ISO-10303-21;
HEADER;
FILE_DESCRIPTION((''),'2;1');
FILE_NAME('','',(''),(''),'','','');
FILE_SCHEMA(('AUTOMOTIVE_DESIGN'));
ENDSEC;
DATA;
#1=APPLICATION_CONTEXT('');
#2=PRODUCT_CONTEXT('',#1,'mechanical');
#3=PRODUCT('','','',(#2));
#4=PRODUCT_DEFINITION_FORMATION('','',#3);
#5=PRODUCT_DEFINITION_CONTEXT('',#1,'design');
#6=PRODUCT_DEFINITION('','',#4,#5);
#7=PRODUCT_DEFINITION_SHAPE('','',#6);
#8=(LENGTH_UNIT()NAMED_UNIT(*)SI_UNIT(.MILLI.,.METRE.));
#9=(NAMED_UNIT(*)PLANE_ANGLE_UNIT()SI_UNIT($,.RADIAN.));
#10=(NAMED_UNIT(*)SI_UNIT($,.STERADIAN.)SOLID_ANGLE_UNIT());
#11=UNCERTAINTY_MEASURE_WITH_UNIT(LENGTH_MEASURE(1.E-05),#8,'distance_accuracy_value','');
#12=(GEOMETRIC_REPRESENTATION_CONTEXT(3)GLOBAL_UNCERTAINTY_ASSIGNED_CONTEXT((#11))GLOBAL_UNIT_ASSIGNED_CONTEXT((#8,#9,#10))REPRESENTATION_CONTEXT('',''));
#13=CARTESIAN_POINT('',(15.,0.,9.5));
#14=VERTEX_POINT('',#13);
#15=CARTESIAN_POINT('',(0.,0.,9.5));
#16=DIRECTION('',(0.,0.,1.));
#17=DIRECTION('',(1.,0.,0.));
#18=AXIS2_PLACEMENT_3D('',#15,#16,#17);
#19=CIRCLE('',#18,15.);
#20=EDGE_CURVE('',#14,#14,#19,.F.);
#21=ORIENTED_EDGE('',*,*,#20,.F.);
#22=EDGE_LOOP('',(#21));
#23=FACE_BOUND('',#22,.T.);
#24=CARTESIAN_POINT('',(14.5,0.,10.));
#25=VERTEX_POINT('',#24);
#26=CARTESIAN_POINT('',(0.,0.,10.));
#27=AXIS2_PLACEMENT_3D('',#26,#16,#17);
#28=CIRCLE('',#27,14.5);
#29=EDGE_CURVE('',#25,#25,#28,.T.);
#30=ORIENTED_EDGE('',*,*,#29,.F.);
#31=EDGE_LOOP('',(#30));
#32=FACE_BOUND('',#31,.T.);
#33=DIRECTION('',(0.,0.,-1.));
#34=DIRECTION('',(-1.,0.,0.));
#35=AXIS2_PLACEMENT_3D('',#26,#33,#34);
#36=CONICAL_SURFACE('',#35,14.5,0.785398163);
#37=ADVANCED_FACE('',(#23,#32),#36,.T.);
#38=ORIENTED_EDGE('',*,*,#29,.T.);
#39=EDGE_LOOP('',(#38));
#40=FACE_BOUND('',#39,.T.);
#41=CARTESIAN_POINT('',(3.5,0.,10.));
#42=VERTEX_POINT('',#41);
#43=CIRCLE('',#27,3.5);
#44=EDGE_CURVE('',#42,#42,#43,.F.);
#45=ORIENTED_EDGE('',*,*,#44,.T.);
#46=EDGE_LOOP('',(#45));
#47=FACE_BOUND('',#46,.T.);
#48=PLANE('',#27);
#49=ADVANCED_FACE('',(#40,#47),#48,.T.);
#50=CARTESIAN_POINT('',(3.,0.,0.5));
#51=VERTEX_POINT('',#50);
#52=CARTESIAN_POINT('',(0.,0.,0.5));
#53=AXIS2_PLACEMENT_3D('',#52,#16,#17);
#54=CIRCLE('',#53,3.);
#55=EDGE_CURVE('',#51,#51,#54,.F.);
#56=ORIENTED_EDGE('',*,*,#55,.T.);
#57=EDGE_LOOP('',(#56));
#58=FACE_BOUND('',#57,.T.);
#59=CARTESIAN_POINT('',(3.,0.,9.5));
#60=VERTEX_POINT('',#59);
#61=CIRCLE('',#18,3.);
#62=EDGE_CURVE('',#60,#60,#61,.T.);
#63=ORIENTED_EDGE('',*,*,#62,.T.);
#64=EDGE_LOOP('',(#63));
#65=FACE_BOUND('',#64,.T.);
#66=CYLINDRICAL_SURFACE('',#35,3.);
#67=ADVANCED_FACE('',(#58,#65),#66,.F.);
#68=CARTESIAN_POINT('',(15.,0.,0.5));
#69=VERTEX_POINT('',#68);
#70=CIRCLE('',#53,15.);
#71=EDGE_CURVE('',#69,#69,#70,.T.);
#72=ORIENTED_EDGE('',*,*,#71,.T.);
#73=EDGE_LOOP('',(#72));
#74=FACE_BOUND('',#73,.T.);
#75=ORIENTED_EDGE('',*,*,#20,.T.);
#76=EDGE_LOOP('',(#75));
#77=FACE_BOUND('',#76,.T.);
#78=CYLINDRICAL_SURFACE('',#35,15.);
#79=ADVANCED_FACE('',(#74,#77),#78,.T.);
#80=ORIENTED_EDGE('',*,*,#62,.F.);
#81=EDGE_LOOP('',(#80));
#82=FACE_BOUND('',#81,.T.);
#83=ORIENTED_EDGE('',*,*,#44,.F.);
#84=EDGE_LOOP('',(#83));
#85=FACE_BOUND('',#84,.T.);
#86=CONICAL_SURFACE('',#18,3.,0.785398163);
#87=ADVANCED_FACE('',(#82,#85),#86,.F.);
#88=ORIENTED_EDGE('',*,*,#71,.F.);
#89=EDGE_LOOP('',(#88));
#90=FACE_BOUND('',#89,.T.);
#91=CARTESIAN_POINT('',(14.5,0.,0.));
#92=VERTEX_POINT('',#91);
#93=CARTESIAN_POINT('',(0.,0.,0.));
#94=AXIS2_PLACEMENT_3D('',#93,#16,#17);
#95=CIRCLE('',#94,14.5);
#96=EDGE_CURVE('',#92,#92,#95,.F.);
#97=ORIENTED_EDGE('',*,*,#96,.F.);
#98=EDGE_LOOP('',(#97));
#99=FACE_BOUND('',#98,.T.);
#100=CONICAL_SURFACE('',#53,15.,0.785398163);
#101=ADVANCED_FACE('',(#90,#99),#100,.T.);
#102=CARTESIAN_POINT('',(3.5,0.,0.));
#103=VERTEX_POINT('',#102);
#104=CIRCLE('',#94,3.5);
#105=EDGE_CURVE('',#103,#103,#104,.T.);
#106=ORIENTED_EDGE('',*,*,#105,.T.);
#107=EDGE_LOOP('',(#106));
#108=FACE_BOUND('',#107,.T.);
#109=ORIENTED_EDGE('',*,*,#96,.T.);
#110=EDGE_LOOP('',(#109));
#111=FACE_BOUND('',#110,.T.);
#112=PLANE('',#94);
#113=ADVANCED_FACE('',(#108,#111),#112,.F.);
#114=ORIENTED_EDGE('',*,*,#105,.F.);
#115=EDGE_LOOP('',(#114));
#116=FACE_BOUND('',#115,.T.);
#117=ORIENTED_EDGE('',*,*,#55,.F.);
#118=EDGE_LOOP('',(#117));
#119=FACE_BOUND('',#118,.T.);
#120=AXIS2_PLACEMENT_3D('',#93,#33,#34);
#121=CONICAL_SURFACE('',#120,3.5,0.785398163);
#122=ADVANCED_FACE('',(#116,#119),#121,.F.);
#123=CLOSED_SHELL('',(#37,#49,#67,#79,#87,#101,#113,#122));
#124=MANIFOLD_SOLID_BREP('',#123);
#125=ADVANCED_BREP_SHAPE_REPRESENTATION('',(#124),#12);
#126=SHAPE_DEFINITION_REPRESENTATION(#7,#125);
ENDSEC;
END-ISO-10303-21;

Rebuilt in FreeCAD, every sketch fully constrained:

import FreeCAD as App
import Part
import Sketcher

V = App.Vector


def edges_at(feature, points):
    """Names of the edges that pass closest to the given points."""
    edges = feature.Shape.Edges
    near = lambda p: min(range(len(edges)), key=lambda i: edges[i].distToShape(Part.Vertex(*p))[0])
    return sorted({f"Edge{near(p) + 1}" for p in points})

doc = App.newDocument("Part")
params = doc.addObject("Spreadsheet::Sheet", "Params")
for row, (alias, value) in enumerate([
    ("sketch1_diameter", "30 mm"),
    ("sketch1_diameter2", "6 mm"),
    ("pad1_length", "10 mm"),
    ("chamfer_size", "0.5 mm"),
], start=1):
    params.set(f"A{row}", alias)
    params.set(f"B{row}", "=" + value)
    params.setAlias(f"B{row}", alias)

body = doc.addObject("PartDesign::Body", "Body")

# Sketch on XY plane
sketch1 = body.newObject("Sketcher::SketchObject", "Sketch")
sketch1.AttachmentSupport = (doc.getObject("XY_Plane"), [""])
sketch1.MapMode = "FlatFace"
sketch1.addGeometry(Part.Circle(V(0, 0, 0), V(0, 0, 1), 15), False)
sketch1.addGeometry(Part.Circle(V(0, 0, 0), V(0, 0, 1), 3), False)
sketch1.addConstraint(Sketcher.Constraint("Coincident", 0, 3, -1, 1))
sketch1.addConstraint(Sketcher.Constraint("Coincident", 1, 3, -1, 1))
sketch1.addConstraint(Sketcher.Constraint("Diameter", 0, 30.0))
sketch1.addConstraint(Sketcher.Constraint("Diameter", 1, 6.0))
sketch1.setExpression("Constraints[2]", "Params.sketch1_diameter")
sketch1.setExpression("Constraints[3]", "Params.sketch1_diameter2")
pad1 = body.newObject("PartDesign::Pad", "Pad")
pad1.Profile = sketch1
pad1.setExpression("Length", "Params.pad1_length")
doc.recompute()

chamfer = body.newObject("PartDesign::Chamfer", "Chamfer")
chamfer.Base = (pad1, edges_at(pad1, [
    (-15, 0, 0),
    (-15, 0, 10),
    (-3, 0, 0),
    (-3, 0, 10),
]))
chamfer.setExpression("Size", "Params.chamfer_size")

doc.recompute()
